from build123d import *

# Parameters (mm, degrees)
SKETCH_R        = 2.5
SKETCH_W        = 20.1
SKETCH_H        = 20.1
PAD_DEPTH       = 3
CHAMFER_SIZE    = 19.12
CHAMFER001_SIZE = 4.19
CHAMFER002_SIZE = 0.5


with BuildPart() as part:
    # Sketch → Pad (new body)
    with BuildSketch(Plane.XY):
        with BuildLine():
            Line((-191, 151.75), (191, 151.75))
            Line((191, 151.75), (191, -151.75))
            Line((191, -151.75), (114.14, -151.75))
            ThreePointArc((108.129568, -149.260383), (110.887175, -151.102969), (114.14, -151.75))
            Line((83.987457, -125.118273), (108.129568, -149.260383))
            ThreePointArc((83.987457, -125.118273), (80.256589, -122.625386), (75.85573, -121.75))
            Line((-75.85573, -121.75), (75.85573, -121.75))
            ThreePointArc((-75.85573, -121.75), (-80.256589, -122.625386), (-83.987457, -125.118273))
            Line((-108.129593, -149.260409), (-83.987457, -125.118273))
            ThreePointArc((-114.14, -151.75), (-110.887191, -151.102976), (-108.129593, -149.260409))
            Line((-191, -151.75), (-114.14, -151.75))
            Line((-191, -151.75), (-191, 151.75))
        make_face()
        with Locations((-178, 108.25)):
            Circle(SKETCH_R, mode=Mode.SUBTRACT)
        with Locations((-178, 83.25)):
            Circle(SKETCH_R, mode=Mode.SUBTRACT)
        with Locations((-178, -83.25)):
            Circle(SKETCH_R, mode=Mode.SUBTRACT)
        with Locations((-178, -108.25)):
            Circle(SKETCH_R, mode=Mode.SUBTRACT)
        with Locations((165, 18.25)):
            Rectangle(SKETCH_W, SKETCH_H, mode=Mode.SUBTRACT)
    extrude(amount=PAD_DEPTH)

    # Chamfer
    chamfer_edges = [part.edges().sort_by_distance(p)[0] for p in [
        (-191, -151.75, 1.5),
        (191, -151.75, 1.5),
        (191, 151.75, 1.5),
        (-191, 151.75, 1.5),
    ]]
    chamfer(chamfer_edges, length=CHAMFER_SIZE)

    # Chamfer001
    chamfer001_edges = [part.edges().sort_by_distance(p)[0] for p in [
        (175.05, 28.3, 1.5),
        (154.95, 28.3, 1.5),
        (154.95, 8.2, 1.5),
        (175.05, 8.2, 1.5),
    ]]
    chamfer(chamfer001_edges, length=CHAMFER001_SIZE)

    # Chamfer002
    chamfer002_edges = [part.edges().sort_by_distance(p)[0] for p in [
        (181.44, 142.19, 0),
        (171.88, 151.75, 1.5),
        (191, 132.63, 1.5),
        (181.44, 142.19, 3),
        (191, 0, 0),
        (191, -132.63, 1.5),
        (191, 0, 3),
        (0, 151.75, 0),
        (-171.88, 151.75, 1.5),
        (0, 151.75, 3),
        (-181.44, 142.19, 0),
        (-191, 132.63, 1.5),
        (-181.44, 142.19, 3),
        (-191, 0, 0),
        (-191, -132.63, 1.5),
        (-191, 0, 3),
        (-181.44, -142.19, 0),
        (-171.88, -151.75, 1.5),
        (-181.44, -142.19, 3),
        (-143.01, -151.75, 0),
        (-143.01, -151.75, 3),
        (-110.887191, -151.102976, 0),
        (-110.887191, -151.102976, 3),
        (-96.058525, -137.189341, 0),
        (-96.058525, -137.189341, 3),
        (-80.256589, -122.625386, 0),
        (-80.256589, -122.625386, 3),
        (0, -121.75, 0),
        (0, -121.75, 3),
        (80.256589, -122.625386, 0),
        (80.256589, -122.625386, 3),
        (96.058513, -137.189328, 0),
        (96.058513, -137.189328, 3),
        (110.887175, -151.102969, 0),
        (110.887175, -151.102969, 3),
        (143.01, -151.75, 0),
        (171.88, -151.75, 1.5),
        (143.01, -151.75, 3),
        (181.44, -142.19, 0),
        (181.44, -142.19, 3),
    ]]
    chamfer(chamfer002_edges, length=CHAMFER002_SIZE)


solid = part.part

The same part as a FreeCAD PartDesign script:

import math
import FreeCAD as App
import Part
import Sketcher

V = App.Vector
Q = App.Units.Quantity


def edges_at(feature, points):
    """Names of the edges that pass closest to the given points."""
    edges = feature.Shape.Edges
    near = lambda p: min(range(len(edges)), key=lambda i: edges[i].distToShape(Part.Vertex(*p))[0])
    return sorted({f"Edge{near(p) + 1}" for p in points})


def add_polygon(sketch, points):
    """Adds a closed chain of lines whose ends are joined by coincident constraints."""
    first, n = sketch.GeometryCount, len(points)
    for a, b in zip(points, points[1:] + points[:1]):
        sketch.addGeometry(Part.LineSegment(App.Vector(*a, 0), App.Vector(*b, 0)), False)
    for i in range(n):
        sketch.addConstraint(Sketcher.Constraint("Coincident", first + i, 2, first + (i + 1) % n, 1))

doc = App.newDocument("Part")
params = doc.addObject("Spreadsheet::Sheet", "Params")
for row, (alias, value) in enumerate([
    ("sketch1_diameter", "5 mm"),
    ("sketch1_radius", "11.5 mm"),
    ("sketch1_width", "382 mm"),
    ("sketch1_width2", "20.1 mm"),
    ("sketch1_height", "303.5 mm"),
    ("pad1_length", "3 mm"),
    ("chamfer_size", "19.12 mm"),
    ("chamfer2_size", "4.19 mm"),
    ("chamfer3_size", "0.5 mm"),
], start=1):
    params.set(f"A{row}", alias)
    params.set(f"B{row}", "=" + value)
    params.setAlias(f"B{row}", alias)

body = doc.addObject("PartDesign::Body", "Body")

sketch1 = body.newObject("Sketcher::SketchObject", "Sketch")
sketch1.AttachmentSupport = (doc.getObject("XY_Plane"), [""])
sketch1.MapMode = "FlatFace"
sketch1.addGeometry(Part.LineSegment(V(191, 151.8, 0), V(-191, 151.8, 0)), False)
sketch1.addGeometry(Part.LineSegment(V(-191, 151.8, 0), V(-191, -151.8, 0)), False)
sketch1.addGeometry(Part.LineSegment(V(-191, -151.8, 0), V(-114.1, -151.8, 0)), False)
sketch1.addGeometry(Part.ArcOfCircle(Part.Circle(V(-114.1, -143.2, 0), V(0, 0, 1), 8.5), math.radians(-90), math.radians(-45)), False)
sketch1.addGeometry(Part.LineSegment(V(-108.1, -149.3, 0), V(-84, -125.1, 0)), False)
sketch1.addGeometry(Part.ArcOfCircle(Part.Circle(V(-75.9, -133.3, 0), V(0, 0, 1), 11.5), math.radians(90), math.radians(135)), False)
sketch1.addGeometry(Part.LineSegment(V(-75.9, -121.8, 0), V(75.9, -121.8, 0)), False)
sketch1.addGeometry(Part.ArcOfCircle(Part.Circle(V(75.9, -133.3, 0), V(0, 0, 1), 11.5), math.radians(45), math.radians(90)), False)
sketch1.addGeometry(Part.LineSegment(V(84, -125.1, 0), V(108.1, -149.3, 0)), False)
sketch1.addGeometry(Part.ArcOfCircle(Part.Circle(V(114.1, -143.2, 0), V(0, 0, 1), 8.5), math.radians(-135), math.radians(-90)), False)
sketch1.addGeometry(Part.LineSegment(V(114.1, -151.8, 0), V(191, -151.8, 0)), False)
sketch1.addGeometry(Part.LineSegment(V(191, -151.8, 0), V(191, 151.8, 0)), False)
sketch1.addGeometry(Part.Circle(V(-178, -108.2, 0), V(0, 0, 1), 2.5), False)
sketch1.addGeometry(Part.Circle(V(-178, -83.2, 0), V(0, 0, 1), 2.5), False)
add_polygon(sketch1, [(154.9, 8.2), (154.9, 28.3), (175.1, 28.3), (175.1, 8.2)])
sketch1.addGeometry(Part.Circle(V(-178, 83.2, 0), V(0, 0, 1), 2.5), False)
sketch1.addGeometry(Part.Circle(V(-178, 108.2, 0), V(0, 0, 1), 2.5), False)
sketch1.addConstraint(Sketcher.Constraint("Coincident", 0, 2, 1, 1))
sketch1.addConstraint(Sketcher.Constraint("Coincident", 1, 2, 2, 1))
sketch1.addConstraint(Sketcher.Constraint("Tangent", 2, 2, 3, 1))
sketch1.addConstraint(Sketcher.Constraint("Tangent", 3, 2, 4, 1))
sketch1.addConstraint(Sketcher.Constraint("Tangent", 4, 2, 5, 2))
sketch1.addConstraint(Sketcher.Constraint("Tangent", 5, 1, 6, 1))
sketch1.addConstraint(Sketcher.Constraint("Tangent", 6, 2, 7, 2))
sketch1.addConstraint(Sketcher.Constraint("Tangent", 7, 1, 8, 1))
sketch1.addConstraint(Sketcher.Constraint("Coincident", 8, 2, 9, 1))
sketch1.addConstraint(Sketcher.Constraint("Tangent", 9, 2, 10, 1))
sketch1.addConstraint(Sketcher.Constraint("Coincident", 10, 2, 11, 1))
sketch1.addConstraint(Sketcher.Constraint("Coincident", 11, 2, 0, 1))
sketch1.addConstraint(Sketcher.Constraint("Horizontal", 0))
sketch1.addConstraint(Sketcher.Constraint("Vertical", 1))
sketch1.addConstraint(Sketcher.Constraint("Horizontal", 2))
sketch1.addConstraint(Sketcher.Constraint("Horizontal", 6))
sketch1.addConstraint(Sketcher.Constraint("Horizontal", 10))
sketch1.addConstraint(Sketcher.Constraint("Vertical", 11))
sketch1.addConstraint(Sketcher.Constraint("Vertical", 14))
sketch1.addConstraint(Sketcher.Constraint("Horizontal", 15))
sketch1.addConstraint(Sketcher.Constraint("Vertical", 16))
sketch1.addConstraint(Sketcher.Constraint("Horizontal", 17))
sketch1.addConstraint(Sketcher.Constraint("Equal", 5, 7))
sketch1.addConstraint(Sketcher.Constraint("Equal", 3, 9))
sketch1.addConstraint(Sketcher.Constraint("Equal", 12, 13))
sketch1.addConstraint(Sketcher.Constraint("Equal", 13, 18))
sketch1.addConstraint(Sketcher.Constraint("Equal", 18, 19))
sketch1.addConstraint(Sketcher.Constraint("Symmetric", 0, 2, 10, 2, -1, 1))
sketch1.addConstraint(Sketcher.Constraint("Symmetric", 3, 3, 9, 3, -2))
sketch1.addConstraint(Sketcher.Constraint("Symmetric", 13, 3, 18, 3, -1))
sketch1.addConstraint(Sketcher.Constraint("Symmetric", 12, 3, 19, 3, -1))
sketch1.addConstraint(Sketcher.Constraint("Perpendicular", 4, 8))
sketch1.addConstraint(Sketcher.Constraint("Horizontal", 4, 2, 7, 1))
sketch1.addConstraint(Sketcher.Constraint("Vertical", 12, 3, 13, 3))
sketch1.addConstraint(Sketcher.Constraint("Equal", 17, 14))
sketch1.addConstraint(Sketcher.Constraint("Diameter", 12, Q("5 mm")))
sketch1.addConstraint(Sketcher.Constraint("Radius", 5, Q("11.5 mm")))
sketch1.addConstraint(Sketcher.Constraint("DistanceX", 0, 2, 0, 1, Q("382 mm")))
sketch1.addConstraint(Sketcher.Constraint("DistanceX", 15, 1, 15, 2, Q("20.1 mm")))
sketch1.addConstraint(Sketcher.Constraint("DistanceY", 1, 2, 1, 1, Q("303.5 mm")))
sketch1.addConstraint(Sketcher.Constraint("DistanceX", 12, 3, -1, 1, Q("178 mm")))
sketch1.addConstraint(Sketcher.Constraint("DistanceY", 5, 3, 12, 3, Q("25 mm")))
sketch1.addConstraint(Sketcher.Constraint("DistanceY", 12, 3, 13, 3, Q("25 mm")))
sketch1.addConstraint(Sketcher.Constraint("DistanceY", 13, 3, 0, 2, Q("235 mm")))
sketch1.addConstraint(Sketcher.Constraint("DistanceX", 2, 1, 2, 2, Q("76.86 mm")))
sketch1.addConstraint(Sketcher.Constraint("DistanceY", -1, 1, 14, 2, Q("28.3 mm")))
sketch1.addConstraint(Sketcher.Constraint("DistanceX", -1, 1, 14, 2, Q("154.95 mm")))
sketch1.addConstraint(Sketcher.Constraint("Radius", 3, Q("8.500004 mm")))
sketch1.addConstraint(Sketcher.Constraint("Distance", 8, Q("34.1421 mm")))
sketch1.setExpression("Constraints[39]", "Params.sketch1_diameter")
sketch1.setExpression("Constraints[40]", "Params.sketch1_radius")
sketch1.setExpression("Constraints[41]", "Params.sketch1_width")
sketch1.setExpression("Constraints[42]", "Params.sketch1_width2")
sketch1.setExpression("Constraints[43]", "Params.sketch1_height")
pad1 = body.newObject("PartDesign::Pad", "Pad")
pad1.Profile = sketch1
pad1.setExpression("Length", "Params.pad1_length")
doc.recompute()

chamfer = body.newObject("PartDesign::Chamfer", "Chamfer")
chamfer.Base = (pad1, edges_at(pad1, [
    (-191, -151.75, 1.5),
    (191, -151.75, 1.5),
    (191, 151.75, 1.5),
    (-191, 151.75, 1.5),
]))
chamfer.setExpression("Size", "Params.chamfer_size")
doc.recompute()

chamfer2 = body.newObject("PartDesign::Chamfer", "Chamfer001")
chamfer2.Base = (chamfer, edges_at(chamfer, [
    (175.05, 28.3, 1.5),
    (154.95, 28.3, 1.5),
    (154.95, 8.2, 1.5),
    (175.05, 8.2, 1.5),
]))
chamfer2.setExpression("Size", "Params.chamfer2_size")
doc.recompute()

chamfer3 = body.newObject("PartDesign::Chamfer", "Chamfer002")
chamfer3.Base = (chamfer2, edges_at(chamfer2, [
    (181.44, 142.19, 0),
    (171.88, 151.75, 1.5),
    (191, 132.63, 1.5),
    (181.44, 142.19, 3),
    (191, 0, 0),
    (191, -132.63, 1.5),
    (191, 0, 3),
    (0, 151.75, 0),
    (-171.88, 151.75, 1.5),
    (0, 151.75, 3),
    (-181.44, 142.19, 0),
    (-191, 132.63, 1.5),
    (-181.44, 142.19, 3),
    (-191, 0, 0),
    (-191, -132.63, 1.5),
    (-191, 0, 3),
    (-181.44, -142.19, 0),
    (-171.88, -151.75, 1.5),
    (-181.44, -142.19, 3),
    (-143.01, -151.75, 0),
    (-143.01, -151.75, 3),
    (-110.887, -151.103, 0),
    (-110.887, -151.103, 3),
    (-96.059, -137.189, 0),
    (-96.059, -137.189, 3),
    (-80.257, -122.625, 0),
    (-80.257, -122.625, 3),
    (0, -121.75, 0),
    (0, -121.75, 3),
    (80.257, -122.625, 0),
    (80.257, -122.625, 3),
    (96.059, -137.189, 0),
    (96.059, -137.189, 3),
    (110.887, -151.103, 0),
    (110.887, -151.103, 3),
    (143.01, -151.75, 0),
    (171.88, -151.75, 1.5),
    (143.01, -151.75, 3),
    (181.44, -142.19, 0),
    (181.44, -142.19, 3),
]))
chamfer3.setExpression("Size", "Params.chamfer3_size")

doc.recompute()
